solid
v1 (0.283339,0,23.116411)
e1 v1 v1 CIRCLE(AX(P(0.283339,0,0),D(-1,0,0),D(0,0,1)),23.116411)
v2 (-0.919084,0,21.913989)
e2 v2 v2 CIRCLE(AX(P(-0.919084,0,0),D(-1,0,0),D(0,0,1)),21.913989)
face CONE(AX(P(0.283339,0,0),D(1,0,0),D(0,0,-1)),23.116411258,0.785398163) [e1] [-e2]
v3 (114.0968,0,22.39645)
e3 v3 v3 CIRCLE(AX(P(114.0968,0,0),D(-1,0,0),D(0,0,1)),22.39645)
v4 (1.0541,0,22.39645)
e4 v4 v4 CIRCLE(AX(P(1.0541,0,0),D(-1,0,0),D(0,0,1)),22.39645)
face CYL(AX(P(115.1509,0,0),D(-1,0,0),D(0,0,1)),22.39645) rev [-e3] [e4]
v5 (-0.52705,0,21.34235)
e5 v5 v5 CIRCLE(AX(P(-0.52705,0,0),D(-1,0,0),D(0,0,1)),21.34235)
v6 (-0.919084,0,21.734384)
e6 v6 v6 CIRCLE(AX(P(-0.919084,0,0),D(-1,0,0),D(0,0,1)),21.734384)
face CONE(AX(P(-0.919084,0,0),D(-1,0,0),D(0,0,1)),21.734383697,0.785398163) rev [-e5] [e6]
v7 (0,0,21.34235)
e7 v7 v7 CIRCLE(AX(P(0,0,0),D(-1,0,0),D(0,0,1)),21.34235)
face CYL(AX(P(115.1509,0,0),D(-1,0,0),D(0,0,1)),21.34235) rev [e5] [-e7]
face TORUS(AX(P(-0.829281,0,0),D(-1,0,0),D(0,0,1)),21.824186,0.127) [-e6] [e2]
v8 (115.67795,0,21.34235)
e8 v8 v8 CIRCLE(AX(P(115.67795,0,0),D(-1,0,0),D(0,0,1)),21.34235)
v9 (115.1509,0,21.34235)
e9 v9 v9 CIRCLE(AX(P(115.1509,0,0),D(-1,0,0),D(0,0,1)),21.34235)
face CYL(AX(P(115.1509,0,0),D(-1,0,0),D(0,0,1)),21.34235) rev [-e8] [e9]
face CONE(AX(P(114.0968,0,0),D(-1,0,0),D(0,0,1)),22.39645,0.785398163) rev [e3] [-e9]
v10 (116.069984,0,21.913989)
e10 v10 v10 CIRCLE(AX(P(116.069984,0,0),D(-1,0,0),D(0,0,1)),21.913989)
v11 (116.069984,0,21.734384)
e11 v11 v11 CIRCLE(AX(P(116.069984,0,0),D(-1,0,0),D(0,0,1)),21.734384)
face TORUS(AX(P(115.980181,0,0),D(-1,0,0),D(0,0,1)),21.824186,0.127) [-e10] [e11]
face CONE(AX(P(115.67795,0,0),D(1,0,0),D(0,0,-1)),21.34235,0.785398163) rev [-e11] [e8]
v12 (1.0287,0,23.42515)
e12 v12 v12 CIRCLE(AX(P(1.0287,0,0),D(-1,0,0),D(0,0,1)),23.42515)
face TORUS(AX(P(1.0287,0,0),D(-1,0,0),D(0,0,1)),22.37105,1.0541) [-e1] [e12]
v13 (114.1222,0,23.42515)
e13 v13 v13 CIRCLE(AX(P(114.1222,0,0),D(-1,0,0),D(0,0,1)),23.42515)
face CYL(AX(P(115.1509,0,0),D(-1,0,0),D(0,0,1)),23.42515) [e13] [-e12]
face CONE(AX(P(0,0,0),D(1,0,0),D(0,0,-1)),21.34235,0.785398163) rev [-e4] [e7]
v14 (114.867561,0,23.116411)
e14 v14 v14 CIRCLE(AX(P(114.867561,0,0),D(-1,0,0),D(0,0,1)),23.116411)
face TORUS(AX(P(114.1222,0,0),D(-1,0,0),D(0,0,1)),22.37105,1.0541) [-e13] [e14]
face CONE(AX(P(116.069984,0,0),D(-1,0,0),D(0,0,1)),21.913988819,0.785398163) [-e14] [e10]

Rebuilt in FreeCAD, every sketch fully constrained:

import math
import FreeCAD as App
import Part
import Sketcher
Q = App.Units.Quantity

doc = App.newDocument("Part")
body = doc.addObject("PartDesign::Body", "Body")

sketch1 = doc.addObject("Sketcher::SketchObject", "Sketch")
body.addObject(sketch1)
sketch1.AttachmentSupport = (doc.XY_Plane, [""])
sketch1.MapMode = "FlatFace"
sketch1.addGeometry([
    Part.LineSegment(App.Vector(-0.919084, 21.734384, 0), App.Vector(-0.52705, 21.34235, 0)),
    Part.LineSegment(App.Vector(-0.52705, 21.34235, 0), App.Vector(0, 21.34235, 0)),
    Part.LineSegment(App.Vector(0, 21.34235, 0), App.Vector(1.0541, 22.39645, 0)),
    Part.LineSegment(App.Vector(1.0541, 22.39645, 0), App.Vector(114.0968, 22.39645, 0)),
    Part.LineSegment(App.Vector(114.0968, 22.39645, 0), App.Vector(115.1509, 21.34235, 0)),
    Part.LineSegment(App.Vector(115.1509, 21.34235, 0), App.Vector(115.67795, 21.34235, 0)),
    Part.LineSegment(App.Vector(115.67795, 21.34235, 0), App.Vector(116.069984, 21.734384, 0)),
    Part.ArcOfCircle(Part.Circle(App.Vector(115.980181, 21.824186, 0), App.Vector(0, 0, 1), 0.127), math.radians(-45), math.radians(45)),
    Part.LineSegment(App.Vector(116.069984, 21.913989, 0), App.Vector(114.867561, 23.116411, 0)),
    Part.ArcOfCircle(Part.Circle(App.Vector(114.1222, 22.37105, 0), App.Vector(0, 0, 1), 1.0541), math.radians(45), math.radians(90)),
    Part.LineSegment(App.Vector(114.1222, 23.42515, 0), App.Vector(1.0287, 23.42515, 0)),
    Part.ArcOfCircle(Part.Circle(App.Vector(1.0287, 22.37105, 0), App.Vector(0, 0, 1), 1.0541), math.radians(90), math.radians(135)),
    Part.LineSegment(App.Vector(0.283339, 23.116411, 0), App.Vector(-0.919084, 21.913989, 0)),
    Part.ArcOfCircle(Part.Circle(App.Vector(-0.829281, 21.824186, 0), App.Vector(0, 0, 1), 0.127), math.radians(135), math.radians(225)),
], False)
sketch1.addConstraint([
    Sketcher.Constraint("Coincident", 0, 2, 1, 1),
    Sketcher.Constraint("Coincident", 1, 2, 2, 1),
    Sketcher.Constraint("Coincident", 2, 2, 3, 1),
    Sketcher.Constraint("Coincident", 3, 2, 4, 1),
    Sketcher.Constraint("Coincident", 4, 2, 5, 1),
    Sketcher.Constraint("Coincident", 5, 2, 6, 1),
    Sketcher.Constraint("Tangent", 6, 2, 7, 1),
    Sketcher.Constraint("Tangent", 7, 2, 8, 1),
    Sketcher.Constraint("Tangent", 8, 2, 9, 1),
    Sketcher.Constraint("Tangent", 9, 2, 10, 1),
    Sketcher.Constraint("Tangent", 10, 2, 11, 1),
    Sketcher.Constraint("Tangent", 11, 2, 12, 1),
    Sketcher.Constraint("Tangent", 12, 2, 13, 1),
    Sketcher.Constraint("Tangent", 13, 2, 0, 1),
    Sketcher.Constraint("Horizontal", 1),
    Sketcher.Constraint("Horizontal", 3),
    Sketcher.Constraint("Horizontal", 5),
    Sketcher.Constraint("Horizontal", 10),
    Sketcher.Constraint("Equal", 9, 11),
    Sketcher.Constraint("Equal", 7, 13),
    Sketcher.Constraint("PointOnObject", 1, 2, -2),
    Sketcher.Constraint("Perpendicular", 0, 2),
    Sketcher.Constraint("Perpendicular", 2, 4),
    Sketcher.Constraint("Perpendicular", 4, 6),
    Sketcher.Constraint("Perpendicular", 6, 8),
    Sketcher.Constraint("Perpendicular", 8, 12),
    Sketcher.Constraint("Horizontal", 7, 3, 13, 3),
    Sketcher.Constraint("Horizontal", 1, 2, 4, 2),
    Sketcher.Constraint("Horizontal", 8, 2, 11, 2),
    Sketcher.Constraint("Equal", 1, 5),
    Sketcher.Constraint("Radius", 7, Q("0.005 in")),
    Sketcher.Constraint("Radius", 9, Q("0.0415 in")),
    Sketcher.Constraint("DistanceX", 3, 1, 3, 2, Q("4.4505 in")),
    Sketcher.Constraint("DistanceX", 10, 2, 10, 1, Q("4.4525 in")),
    Sketcher.Constraint("DistanceX", -1, 1, 9, 3, Q("4.493 in")),
    Sketcher.Constraint("DistanceY", 11, 3, 2, 2, Q("0.001 in")),
    Sketcher.Constraint("DistanceX", 1, 1, 1, 2, Q("0.52705 mm")),
    Sketcher.Constraint("DistanceY", -1, 1, 9, 3, Q("22.37105 mm")),
])
revolution = doc.addObject("PartDesign::Revolution", "Revolution")
body.addObject(revolution)
revolution.Profile = sketch1
revolution.ReferenceAxis = (sketch1, ["H_Axis"])
revolution.Angle = 360

doc.recompute()
